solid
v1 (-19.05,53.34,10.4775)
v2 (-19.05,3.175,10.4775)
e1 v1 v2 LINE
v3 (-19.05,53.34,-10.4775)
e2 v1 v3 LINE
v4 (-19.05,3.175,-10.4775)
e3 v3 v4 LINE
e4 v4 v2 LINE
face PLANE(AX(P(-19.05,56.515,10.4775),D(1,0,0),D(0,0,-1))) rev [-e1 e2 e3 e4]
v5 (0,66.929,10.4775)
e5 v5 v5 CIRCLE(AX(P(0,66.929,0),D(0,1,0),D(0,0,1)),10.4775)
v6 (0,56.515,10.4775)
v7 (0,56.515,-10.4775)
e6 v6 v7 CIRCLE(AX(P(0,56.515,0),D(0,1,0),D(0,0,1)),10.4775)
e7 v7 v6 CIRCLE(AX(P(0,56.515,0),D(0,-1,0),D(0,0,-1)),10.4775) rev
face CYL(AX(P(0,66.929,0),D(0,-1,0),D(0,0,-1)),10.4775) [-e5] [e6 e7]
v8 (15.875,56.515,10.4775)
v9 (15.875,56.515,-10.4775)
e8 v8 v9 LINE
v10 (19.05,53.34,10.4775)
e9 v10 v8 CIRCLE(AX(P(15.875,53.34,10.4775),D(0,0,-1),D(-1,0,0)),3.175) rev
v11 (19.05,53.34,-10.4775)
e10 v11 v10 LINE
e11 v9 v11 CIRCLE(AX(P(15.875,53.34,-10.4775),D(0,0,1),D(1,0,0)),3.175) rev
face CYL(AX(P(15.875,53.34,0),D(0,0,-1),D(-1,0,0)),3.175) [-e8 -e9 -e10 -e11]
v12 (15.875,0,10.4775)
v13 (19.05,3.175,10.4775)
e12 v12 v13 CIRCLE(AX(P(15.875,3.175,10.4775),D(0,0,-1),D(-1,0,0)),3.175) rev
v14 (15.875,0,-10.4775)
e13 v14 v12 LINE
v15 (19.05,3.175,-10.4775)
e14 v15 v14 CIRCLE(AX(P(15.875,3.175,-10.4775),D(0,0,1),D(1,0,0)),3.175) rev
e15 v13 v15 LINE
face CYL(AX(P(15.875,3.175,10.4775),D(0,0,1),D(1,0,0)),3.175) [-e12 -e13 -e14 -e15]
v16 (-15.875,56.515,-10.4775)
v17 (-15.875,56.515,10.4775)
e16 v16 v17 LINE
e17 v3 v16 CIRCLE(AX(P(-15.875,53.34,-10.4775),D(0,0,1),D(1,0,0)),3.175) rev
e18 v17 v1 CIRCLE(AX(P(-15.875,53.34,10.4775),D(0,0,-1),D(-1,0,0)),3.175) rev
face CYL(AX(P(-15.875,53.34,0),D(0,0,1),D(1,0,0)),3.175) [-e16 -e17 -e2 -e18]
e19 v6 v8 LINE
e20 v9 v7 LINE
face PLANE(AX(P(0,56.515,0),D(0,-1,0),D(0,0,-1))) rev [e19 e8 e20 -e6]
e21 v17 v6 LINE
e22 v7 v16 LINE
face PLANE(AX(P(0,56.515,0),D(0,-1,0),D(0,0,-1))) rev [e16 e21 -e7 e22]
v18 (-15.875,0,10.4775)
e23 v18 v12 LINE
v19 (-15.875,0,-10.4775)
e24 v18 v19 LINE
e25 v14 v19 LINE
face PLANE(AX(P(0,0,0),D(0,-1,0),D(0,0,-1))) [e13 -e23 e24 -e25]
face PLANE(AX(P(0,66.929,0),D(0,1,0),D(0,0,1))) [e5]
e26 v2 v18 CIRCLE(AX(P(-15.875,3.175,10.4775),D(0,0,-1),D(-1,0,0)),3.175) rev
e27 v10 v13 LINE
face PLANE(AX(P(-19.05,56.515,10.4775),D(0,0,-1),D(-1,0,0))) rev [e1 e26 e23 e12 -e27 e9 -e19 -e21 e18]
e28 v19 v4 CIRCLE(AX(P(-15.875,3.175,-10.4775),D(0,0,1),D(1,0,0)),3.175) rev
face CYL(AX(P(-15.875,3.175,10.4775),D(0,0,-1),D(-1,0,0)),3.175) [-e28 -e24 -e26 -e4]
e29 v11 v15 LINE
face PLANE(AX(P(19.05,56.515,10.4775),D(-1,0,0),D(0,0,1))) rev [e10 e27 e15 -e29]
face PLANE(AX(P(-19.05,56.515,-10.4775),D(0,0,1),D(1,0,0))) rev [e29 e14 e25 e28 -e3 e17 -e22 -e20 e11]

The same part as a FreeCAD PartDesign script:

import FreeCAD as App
import Part
import Sketcher
from FreeCAD import Vector
Q = App.Units.Quantity


def edges_at(feature, points):
    """Names of the edges that pass closest to the given points."""
    edges = feature.Shape.Edges
    near = lambda p: min(range(len(edges)), key=lambda i: edges[i].distToShape(Part.Vertex(*p))[0])
    return sorted({f"Edge{near(p) + 1}" for p in points})

doc = App.newDocument("Part")
body = doc.addObject("PartDesign::Body", "Body")

sketch1 = doc.addObject("Sketcher::SketchObject", "Sketch")
body.addObject(sketch1)
sketch1.AttachmentSupport = (doc.XZ_Plane, [""])
sketch1.MapMode = "FlatFace"
sketch1.addGeometry([
    Part.LineSegment(Vector(-19.05, -10.4775, 0), Vector(-19.05, 10.4775, 0)),
    Part.LineSegment(Vector(-19.05, 10.4775, 0), Vector(19.05, 10.4775, 0)),
    Part.LineSegment(Vector(19.05, 10.4775, 0), Vector(19.05, -10.4775, 0)),
    Part.LineSegment(Vector(19.05, -10.4775, 0), Vector(-19.05, -10.4775, 0)),
], False)
sketch1.addConstraint([
    Sketcher.Constraint("Coincident", 0, 2, 1, 1),
    Sketcher.Constraint("Coincident", 1, 2, 2, 1),
    Sketcher.Constraint("Coincident", 2, 2, 3, 1),
    Sketcher.Constraint("Coincident", 3, 2, 0, 1),
    Sketcher.Constraint("Vertical", 0),
    Sketcher.Constraint("Horizontal", 1),
    Sketcher.Constraint("Vertical", 2),
    Sketcher.Constraint("Horizontal", 3),
    Sketcher.Constraint("Symmetric", 0, 2, 2, 2, -1, 1),
    Sketcher.Constraint("DistanceX", 1, 1, 1, 2, Q("1.5 in")),
    Sketcher.Constraint("DistanceY", 0, 1, 0, 2, Q("0.825 in")),
])
pad1 = doc.addObject("PartDesign::Pad", "Pad")
body.addObject(pad1)
pad1.Profile = sketch1
pad1.Length = Q("2.225 in")
pad1.Reversed = True
doc.recompute()

fillet = doc.addObject("PartDesign::Fillet", "Fillet")
body.addObject(fillet)
fillet.Base = (pad1, edges_at(pad1, [
    (-19.05, 56.515, 0),
    (19.05, 56.515, 0),
    (-19.05, 0, 0),
    (19.05, 0, 0),
]))
fillet.Radius = Q("0.125 in")

sketch2 = doc.addObject("Sketcher::SketchObject", "Sketch001")
body.addObject(sketch2)
sketch2.AttachmentSupport = (doc.XZ_Plane, [""])
sketch2.MapMode = "FlatFace"
sketch2.AttachmentOffset = App.Placement(Vector(0, 0, -2.225 * 25.4), App.Rotation())
sketch2.addGeometry(Part.Circle(Vector(0, 0, 0), Vector(0, 0, 1), 10.4775), False)
sketch2.addConstraint([
    Sketcher.Constraint("Coincident", 0, 3, -1, 1),
    Sketcher.Constraint("Diameter", 0, Q("0.825 in")),
])
pad2 = doc.addObject("PartDesign::Pad", "Pad001")
body.addObject(pad2)
pad2.Profile = sketch2
pad2.Length = Q("0.41 in")
pad2.Reversed = True

doc.recompute()
